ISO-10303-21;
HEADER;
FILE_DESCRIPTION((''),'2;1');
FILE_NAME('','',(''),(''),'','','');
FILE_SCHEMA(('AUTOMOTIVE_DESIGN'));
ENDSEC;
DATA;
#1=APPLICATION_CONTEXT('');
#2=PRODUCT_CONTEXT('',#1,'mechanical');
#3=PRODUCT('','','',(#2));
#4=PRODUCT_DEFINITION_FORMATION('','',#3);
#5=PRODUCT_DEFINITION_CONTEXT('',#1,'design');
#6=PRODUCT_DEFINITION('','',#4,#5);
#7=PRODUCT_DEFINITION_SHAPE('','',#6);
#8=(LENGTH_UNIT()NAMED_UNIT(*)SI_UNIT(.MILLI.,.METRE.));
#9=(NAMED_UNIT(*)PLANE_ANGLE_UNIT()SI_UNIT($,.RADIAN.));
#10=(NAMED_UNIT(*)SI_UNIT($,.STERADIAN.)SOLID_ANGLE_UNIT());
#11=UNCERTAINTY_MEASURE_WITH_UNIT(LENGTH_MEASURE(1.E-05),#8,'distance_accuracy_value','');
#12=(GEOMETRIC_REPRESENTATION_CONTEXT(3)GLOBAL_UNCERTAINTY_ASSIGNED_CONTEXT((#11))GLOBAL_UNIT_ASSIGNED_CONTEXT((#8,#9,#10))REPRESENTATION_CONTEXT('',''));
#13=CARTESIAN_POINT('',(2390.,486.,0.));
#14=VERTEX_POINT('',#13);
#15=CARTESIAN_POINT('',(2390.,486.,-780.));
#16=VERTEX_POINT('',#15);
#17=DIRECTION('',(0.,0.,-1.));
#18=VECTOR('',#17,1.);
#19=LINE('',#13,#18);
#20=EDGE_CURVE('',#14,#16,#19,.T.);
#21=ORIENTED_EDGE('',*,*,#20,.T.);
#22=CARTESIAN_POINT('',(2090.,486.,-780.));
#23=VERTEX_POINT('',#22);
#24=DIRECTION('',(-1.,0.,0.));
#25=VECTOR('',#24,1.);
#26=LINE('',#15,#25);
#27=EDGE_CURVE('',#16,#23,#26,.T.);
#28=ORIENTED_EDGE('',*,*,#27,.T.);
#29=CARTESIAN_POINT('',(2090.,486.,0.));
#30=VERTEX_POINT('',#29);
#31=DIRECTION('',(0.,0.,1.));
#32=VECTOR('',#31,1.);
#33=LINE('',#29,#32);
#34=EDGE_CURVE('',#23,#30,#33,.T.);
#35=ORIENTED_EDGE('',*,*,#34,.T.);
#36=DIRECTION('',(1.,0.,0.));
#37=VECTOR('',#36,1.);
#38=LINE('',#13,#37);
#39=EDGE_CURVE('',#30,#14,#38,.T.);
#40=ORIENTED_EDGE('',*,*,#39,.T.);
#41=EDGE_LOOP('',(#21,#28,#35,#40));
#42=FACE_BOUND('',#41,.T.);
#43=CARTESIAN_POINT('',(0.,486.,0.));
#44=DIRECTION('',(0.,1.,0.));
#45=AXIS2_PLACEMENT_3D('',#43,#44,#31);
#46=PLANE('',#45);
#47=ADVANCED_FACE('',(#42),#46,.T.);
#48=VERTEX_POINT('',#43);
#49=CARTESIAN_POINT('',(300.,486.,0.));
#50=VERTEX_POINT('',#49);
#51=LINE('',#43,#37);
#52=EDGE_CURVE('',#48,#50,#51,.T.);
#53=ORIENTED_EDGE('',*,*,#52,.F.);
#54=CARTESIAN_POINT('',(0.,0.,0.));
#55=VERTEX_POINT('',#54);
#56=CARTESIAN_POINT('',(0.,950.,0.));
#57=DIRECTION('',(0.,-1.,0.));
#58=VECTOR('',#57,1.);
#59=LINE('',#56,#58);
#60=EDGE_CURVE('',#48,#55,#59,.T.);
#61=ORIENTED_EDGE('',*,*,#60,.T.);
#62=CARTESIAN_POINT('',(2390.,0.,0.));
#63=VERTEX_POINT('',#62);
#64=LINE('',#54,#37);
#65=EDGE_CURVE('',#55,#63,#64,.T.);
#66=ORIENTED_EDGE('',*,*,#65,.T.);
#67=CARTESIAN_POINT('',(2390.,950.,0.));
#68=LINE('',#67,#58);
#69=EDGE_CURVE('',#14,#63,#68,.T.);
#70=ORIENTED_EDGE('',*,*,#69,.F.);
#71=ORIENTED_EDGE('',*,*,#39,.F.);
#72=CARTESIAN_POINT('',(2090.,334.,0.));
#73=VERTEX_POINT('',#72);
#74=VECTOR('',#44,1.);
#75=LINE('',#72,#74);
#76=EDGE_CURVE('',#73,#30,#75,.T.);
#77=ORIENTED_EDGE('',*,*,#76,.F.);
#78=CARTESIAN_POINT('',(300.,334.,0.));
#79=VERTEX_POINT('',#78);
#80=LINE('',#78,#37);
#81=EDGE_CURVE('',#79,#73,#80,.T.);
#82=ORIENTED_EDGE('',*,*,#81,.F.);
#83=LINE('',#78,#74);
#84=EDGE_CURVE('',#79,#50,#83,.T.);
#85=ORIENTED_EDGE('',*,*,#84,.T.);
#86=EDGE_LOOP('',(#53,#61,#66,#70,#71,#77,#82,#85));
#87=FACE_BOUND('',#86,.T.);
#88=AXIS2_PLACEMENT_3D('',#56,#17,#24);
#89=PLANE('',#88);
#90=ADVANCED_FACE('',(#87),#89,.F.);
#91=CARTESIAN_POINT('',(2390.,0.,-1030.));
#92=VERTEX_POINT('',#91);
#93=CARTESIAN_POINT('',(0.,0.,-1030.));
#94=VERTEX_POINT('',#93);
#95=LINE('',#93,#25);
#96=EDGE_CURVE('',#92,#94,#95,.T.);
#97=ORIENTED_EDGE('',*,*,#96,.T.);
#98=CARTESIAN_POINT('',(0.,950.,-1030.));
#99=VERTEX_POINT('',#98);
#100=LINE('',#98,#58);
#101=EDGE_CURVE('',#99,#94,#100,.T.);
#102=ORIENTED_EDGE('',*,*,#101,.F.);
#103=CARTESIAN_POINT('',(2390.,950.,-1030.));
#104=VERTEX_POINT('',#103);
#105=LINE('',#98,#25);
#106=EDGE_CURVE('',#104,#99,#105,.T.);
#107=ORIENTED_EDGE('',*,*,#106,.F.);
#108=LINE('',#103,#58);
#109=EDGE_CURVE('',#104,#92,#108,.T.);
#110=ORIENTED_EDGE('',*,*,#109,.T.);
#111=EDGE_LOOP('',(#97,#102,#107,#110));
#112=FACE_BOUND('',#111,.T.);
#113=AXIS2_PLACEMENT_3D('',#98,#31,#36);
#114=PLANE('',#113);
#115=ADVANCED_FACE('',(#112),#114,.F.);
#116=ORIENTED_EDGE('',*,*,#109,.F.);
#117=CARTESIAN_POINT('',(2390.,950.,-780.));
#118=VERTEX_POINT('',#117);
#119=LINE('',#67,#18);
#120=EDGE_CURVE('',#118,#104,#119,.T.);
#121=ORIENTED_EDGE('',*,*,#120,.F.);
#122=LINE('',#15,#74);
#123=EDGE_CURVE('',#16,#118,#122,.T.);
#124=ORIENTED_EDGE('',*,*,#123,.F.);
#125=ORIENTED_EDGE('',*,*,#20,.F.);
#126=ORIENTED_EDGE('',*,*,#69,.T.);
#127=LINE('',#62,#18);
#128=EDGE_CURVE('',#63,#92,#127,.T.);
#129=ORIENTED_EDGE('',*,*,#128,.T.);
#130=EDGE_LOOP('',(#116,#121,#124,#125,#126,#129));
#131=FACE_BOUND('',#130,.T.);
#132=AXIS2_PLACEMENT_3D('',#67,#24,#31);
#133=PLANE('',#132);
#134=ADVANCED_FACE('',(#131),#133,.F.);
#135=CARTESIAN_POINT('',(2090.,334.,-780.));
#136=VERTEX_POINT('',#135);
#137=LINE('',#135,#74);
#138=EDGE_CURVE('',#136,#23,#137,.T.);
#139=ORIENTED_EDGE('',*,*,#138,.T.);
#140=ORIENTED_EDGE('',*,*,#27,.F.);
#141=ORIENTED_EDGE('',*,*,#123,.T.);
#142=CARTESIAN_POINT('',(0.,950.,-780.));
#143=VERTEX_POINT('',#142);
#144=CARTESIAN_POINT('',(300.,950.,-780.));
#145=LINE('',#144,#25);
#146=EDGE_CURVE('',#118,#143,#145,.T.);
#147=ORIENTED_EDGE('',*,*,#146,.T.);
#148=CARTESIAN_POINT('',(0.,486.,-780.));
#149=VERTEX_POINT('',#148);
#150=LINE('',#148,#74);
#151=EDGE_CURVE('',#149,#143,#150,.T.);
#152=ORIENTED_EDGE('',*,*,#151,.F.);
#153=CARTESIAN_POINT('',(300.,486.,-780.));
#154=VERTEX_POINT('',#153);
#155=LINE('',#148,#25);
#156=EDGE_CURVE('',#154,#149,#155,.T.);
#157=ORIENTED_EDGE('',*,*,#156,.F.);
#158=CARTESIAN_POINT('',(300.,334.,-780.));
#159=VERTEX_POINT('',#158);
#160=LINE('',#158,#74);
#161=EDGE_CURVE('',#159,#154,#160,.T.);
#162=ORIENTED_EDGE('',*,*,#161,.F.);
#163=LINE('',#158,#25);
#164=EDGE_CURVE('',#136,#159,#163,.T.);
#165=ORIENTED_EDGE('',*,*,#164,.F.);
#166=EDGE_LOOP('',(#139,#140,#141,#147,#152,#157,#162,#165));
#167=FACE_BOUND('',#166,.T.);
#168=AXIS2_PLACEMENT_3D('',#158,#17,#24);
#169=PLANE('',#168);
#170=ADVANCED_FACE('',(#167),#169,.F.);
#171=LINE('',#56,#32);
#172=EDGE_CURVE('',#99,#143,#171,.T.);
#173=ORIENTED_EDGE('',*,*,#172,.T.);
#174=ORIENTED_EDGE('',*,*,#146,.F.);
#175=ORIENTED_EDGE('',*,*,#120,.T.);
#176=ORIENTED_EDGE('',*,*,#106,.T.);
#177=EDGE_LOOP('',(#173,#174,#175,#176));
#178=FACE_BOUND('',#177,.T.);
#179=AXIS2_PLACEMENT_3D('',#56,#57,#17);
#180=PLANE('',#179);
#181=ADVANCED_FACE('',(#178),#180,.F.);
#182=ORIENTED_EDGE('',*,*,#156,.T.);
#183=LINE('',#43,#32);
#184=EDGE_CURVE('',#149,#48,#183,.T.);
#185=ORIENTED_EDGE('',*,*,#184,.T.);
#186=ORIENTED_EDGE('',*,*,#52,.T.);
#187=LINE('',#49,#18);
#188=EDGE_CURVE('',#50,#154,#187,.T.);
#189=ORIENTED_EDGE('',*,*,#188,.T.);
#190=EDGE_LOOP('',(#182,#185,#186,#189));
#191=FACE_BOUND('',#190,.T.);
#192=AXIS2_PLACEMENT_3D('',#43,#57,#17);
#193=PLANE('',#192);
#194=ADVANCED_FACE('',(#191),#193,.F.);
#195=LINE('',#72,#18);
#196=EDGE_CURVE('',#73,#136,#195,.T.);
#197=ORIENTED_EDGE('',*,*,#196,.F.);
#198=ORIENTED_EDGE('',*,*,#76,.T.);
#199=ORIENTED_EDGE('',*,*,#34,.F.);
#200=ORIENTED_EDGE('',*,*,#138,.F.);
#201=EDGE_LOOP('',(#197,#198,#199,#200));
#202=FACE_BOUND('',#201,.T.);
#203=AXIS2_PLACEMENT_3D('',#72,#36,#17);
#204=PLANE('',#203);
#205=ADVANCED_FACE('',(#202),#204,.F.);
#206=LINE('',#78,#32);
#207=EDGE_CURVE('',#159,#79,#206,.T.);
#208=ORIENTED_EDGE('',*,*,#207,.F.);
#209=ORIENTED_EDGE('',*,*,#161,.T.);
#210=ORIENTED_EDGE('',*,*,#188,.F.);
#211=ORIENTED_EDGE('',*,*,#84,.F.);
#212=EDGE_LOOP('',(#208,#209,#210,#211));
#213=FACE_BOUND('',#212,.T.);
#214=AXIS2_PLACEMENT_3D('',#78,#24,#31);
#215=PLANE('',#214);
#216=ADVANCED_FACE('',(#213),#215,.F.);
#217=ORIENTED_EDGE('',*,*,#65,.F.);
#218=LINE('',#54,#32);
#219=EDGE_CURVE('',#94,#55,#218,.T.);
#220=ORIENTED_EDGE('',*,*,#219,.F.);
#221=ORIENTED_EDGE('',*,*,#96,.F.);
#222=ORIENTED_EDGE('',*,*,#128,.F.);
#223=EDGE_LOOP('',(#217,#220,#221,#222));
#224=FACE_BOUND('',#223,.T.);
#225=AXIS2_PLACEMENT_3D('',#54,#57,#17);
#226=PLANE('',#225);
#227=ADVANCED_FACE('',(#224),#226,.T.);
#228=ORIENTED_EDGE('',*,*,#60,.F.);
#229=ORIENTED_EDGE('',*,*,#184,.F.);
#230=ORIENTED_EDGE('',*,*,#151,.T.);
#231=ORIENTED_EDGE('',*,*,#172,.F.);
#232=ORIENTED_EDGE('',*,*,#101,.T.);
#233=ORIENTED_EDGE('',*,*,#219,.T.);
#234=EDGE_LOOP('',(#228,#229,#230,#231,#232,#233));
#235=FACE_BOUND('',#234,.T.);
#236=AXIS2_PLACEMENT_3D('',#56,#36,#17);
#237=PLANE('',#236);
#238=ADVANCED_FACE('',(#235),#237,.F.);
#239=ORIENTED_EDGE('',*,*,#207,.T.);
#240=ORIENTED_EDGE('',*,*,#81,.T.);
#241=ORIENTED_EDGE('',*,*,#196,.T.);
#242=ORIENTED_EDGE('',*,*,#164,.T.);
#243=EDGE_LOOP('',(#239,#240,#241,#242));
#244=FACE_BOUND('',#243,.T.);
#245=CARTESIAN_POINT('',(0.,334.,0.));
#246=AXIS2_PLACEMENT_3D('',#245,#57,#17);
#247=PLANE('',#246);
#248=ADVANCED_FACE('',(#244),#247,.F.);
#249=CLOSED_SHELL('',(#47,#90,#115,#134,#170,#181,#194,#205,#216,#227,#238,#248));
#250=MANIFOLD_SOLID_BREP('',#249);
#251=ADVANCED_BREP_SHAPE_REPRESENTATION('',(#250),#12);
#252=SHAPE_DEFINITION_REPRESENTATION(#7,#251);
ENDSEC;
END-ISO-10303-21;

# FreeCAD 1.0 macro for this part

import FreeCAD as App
import Part
import Sketcher

V = App.Vector
Q = App.Units.Quantity


def add_polygon(sketch, points):
    """Adds a closed chain of lines whose ends are joined by coincident constraints."""
    first, n = sketch.GeometryCount, len(points)
    for a, b in zip(points, points[1:] + points[:1]):
        sketch.addGeometry(Part.LineSegment(App.Vector(*a, 0), App.Vector(*b, 0)), False)
    for i in range(n):
        sketch.addConstraint(Sketcher.Constraint("Coincident", first + i, 2, first + (i + 1) % n, 1))

doc = App.newDocument("Part")
params = doc.addObject("Spreadsheet::Sheet", "Params")
for row, (alias, value) in enumerate([
    ("sketch1_width", "2390 mm"),
    ("sketch1_height", "1030 mm"),
    ("pad1_length", "950 mm"),
    ("sketch2_width", "1790 mm"),
    ("sketch2_height", "780 mm"),
    ("pocket1_length", "616 mm"),
    ("sketch3_width", "300 mm"),
    ("sketch3_height", "780 mm"),
    ("pocket2_length", "464 mm"),
], start=1):
    params.set(f"A{row}", alias)
    params.set(f"B{row}", "=" + value)
    params.setAlias(f"B{row}", alias)

body = doc.addObject("PartDesign::Body", "Body")

# Sketch on XZ plane
sketch1 = body.newObject("Sketcher::SketchObject", "Sketch")
sketch1.AttachmentSupport = (doc.getObject("XZ_Plane"), [""])
sketch1.MapMode = "FlatFace"
add_polygon(sketch1, [(0, -1030), (0, 0), (2390, 0), (2390, -1030)])  # lines 0-3
sketch1.addConstraint([
    Sketcher.Constraint("Vertical", 0),
    Sketcher.Constraint("Horizontal", 1),
    Sketcher.Constraint("Vertical", 2),
    Sketcher.Constraint("Horizontal", 3),
    Sketcher.Constraint("Coincident", 0, 2, -1, 1),
    Sketcher.Constraint("DistanceX", 1, 1, 1, 2, Q("2390 mm")),
    Sketcher.Constraint("DistanceY", 0, 1, 0, 2, Q("1030 mm")),
])
sketch1.setExpression("Constraints[9]", "Params.sketch1_width")
sketch1.setExpression("Constraints[10]", "Params.sketch1_height")
pad1 = body.newObject("PartDesign::Pad", "Pad")
pad1.Profile = sketch1
pad1.setExpression("Length", "Params.pad1_length")
pad1.Reversed = True

# Sketch on XZ plane
sketch2 = body.newObject("Sketcher::SketchObject", "Sketch001")
sketch2.AttachmentSupport = (doc.getObject("XZ_Plane"), [""])
sketch2.MapMode = "FlatFace"
sketch2.AttachmentOffset = App.Placement(V(0, 0, -950), App.Rotation())
add_polygon(sketch2, [(300, -780), (300, 0), (2090, 0), (2090, -780)])  # lines 0-3
sketch2.addConstraint([
    Sketcher.Constraint("Vertical", 0),
    Sketcher.Constraint("Horizontal", 1),
    Sketcher.Constraint("Vertical", 2),
    Sketcher.Constraint("Horizontal", 3),
    Sketcher.Constraint("PointOnObject", 0, 2, -1),
    Sketcher.Constraint("DistanceX", 1, 1, 1, 2, Q("1790 mm")),
    Sketcher.Constraint("DistanceY", 0, 1, 0, 2, Q("780 mm")),
    Sketcher.Constraint("DistanceX", -1, 1, 0, 2, Q("300 mm")),
])
sketch2.setExpression("Constraints[9]", "Params.sketch2_width")
sketch2.setExpression("Constraints[10]", "Params.sketch2_height")
pocket1 = body.newObject("PartDesign::Pocket", "Pocket")
pocket1.Profile = sketch2
pocket1.setExpression("Length", "Params.pocket1_length")
pocket1.Reversed = True

# Sketch on XZ plane
sketch3 = body.newObject("Sketcher::SketchObject", "Sketch002")
sketch3.AttachmentSupport = (doc.getObject("XZ_Plane"), [""])
sketch3.MapMode = "FlatFace"
sketch3.AttachmentOffset = App.Placement(V(0, 0, -950), App.Rotation())
add_polygon(sketch3, [(0, -780), (0, 0), (300, 0), (300, -780)])  # lines 0-3
add_polygon(sketch3, [(2090, -780), (2090, 0), (2390, 0), (2390, -780)])  # lines 4-7
sketch3.addConstraint([
    Sketcher.Constraint("Vertical", 0),
    Sketcher.Constraint("Horizontal", 1),
    Sketcher.Constraint("Vertical", 2),
    Sketcher.Constraint("Horizontal", 3),
    Sketcher.Constraint("Vertical", 4),
    Sketcher.Constraint("Horizontal", 5),
    Sketcher.Constraint("Vertical", 6),
    Sketcher.Constraint("Horizontal", 7),
    Sketcher.Constraint("Coincident", 0, 2, -1, 1),
    Sketcher.Constraint("PointOnObject", 4, 2, -1),
    Sketcher.Constraint("Horizontal", 3, 2, 6, 2),
    Sketcher.Constraint("Equal", 3, 5),
    Sketcher.Constraint("DistanceX", 1, 1, 1, 2, Q("300 mm")),
    Sketcher.Constraint("DistanceY", 0, 1, 0, 2, Q("780 mm")),
    Sketcher.Constraint("DistanceX", -1, 1, 4, 2, Q("2090 mm")),
])
sketch3.setExpression("Constraints[20]", "Params.sketch3_width")
sketch3.setExpression("Constraints[21]", "Params.sketch3_height")
pocket2 = body.newObject("PartDesign::Pocket", "Pocket001")
pocket2.Profile = sketch3
pocket2.setExpression("Length", "Params.pocket2_length")
pocket2.Reversed = True

doc.recompute()
